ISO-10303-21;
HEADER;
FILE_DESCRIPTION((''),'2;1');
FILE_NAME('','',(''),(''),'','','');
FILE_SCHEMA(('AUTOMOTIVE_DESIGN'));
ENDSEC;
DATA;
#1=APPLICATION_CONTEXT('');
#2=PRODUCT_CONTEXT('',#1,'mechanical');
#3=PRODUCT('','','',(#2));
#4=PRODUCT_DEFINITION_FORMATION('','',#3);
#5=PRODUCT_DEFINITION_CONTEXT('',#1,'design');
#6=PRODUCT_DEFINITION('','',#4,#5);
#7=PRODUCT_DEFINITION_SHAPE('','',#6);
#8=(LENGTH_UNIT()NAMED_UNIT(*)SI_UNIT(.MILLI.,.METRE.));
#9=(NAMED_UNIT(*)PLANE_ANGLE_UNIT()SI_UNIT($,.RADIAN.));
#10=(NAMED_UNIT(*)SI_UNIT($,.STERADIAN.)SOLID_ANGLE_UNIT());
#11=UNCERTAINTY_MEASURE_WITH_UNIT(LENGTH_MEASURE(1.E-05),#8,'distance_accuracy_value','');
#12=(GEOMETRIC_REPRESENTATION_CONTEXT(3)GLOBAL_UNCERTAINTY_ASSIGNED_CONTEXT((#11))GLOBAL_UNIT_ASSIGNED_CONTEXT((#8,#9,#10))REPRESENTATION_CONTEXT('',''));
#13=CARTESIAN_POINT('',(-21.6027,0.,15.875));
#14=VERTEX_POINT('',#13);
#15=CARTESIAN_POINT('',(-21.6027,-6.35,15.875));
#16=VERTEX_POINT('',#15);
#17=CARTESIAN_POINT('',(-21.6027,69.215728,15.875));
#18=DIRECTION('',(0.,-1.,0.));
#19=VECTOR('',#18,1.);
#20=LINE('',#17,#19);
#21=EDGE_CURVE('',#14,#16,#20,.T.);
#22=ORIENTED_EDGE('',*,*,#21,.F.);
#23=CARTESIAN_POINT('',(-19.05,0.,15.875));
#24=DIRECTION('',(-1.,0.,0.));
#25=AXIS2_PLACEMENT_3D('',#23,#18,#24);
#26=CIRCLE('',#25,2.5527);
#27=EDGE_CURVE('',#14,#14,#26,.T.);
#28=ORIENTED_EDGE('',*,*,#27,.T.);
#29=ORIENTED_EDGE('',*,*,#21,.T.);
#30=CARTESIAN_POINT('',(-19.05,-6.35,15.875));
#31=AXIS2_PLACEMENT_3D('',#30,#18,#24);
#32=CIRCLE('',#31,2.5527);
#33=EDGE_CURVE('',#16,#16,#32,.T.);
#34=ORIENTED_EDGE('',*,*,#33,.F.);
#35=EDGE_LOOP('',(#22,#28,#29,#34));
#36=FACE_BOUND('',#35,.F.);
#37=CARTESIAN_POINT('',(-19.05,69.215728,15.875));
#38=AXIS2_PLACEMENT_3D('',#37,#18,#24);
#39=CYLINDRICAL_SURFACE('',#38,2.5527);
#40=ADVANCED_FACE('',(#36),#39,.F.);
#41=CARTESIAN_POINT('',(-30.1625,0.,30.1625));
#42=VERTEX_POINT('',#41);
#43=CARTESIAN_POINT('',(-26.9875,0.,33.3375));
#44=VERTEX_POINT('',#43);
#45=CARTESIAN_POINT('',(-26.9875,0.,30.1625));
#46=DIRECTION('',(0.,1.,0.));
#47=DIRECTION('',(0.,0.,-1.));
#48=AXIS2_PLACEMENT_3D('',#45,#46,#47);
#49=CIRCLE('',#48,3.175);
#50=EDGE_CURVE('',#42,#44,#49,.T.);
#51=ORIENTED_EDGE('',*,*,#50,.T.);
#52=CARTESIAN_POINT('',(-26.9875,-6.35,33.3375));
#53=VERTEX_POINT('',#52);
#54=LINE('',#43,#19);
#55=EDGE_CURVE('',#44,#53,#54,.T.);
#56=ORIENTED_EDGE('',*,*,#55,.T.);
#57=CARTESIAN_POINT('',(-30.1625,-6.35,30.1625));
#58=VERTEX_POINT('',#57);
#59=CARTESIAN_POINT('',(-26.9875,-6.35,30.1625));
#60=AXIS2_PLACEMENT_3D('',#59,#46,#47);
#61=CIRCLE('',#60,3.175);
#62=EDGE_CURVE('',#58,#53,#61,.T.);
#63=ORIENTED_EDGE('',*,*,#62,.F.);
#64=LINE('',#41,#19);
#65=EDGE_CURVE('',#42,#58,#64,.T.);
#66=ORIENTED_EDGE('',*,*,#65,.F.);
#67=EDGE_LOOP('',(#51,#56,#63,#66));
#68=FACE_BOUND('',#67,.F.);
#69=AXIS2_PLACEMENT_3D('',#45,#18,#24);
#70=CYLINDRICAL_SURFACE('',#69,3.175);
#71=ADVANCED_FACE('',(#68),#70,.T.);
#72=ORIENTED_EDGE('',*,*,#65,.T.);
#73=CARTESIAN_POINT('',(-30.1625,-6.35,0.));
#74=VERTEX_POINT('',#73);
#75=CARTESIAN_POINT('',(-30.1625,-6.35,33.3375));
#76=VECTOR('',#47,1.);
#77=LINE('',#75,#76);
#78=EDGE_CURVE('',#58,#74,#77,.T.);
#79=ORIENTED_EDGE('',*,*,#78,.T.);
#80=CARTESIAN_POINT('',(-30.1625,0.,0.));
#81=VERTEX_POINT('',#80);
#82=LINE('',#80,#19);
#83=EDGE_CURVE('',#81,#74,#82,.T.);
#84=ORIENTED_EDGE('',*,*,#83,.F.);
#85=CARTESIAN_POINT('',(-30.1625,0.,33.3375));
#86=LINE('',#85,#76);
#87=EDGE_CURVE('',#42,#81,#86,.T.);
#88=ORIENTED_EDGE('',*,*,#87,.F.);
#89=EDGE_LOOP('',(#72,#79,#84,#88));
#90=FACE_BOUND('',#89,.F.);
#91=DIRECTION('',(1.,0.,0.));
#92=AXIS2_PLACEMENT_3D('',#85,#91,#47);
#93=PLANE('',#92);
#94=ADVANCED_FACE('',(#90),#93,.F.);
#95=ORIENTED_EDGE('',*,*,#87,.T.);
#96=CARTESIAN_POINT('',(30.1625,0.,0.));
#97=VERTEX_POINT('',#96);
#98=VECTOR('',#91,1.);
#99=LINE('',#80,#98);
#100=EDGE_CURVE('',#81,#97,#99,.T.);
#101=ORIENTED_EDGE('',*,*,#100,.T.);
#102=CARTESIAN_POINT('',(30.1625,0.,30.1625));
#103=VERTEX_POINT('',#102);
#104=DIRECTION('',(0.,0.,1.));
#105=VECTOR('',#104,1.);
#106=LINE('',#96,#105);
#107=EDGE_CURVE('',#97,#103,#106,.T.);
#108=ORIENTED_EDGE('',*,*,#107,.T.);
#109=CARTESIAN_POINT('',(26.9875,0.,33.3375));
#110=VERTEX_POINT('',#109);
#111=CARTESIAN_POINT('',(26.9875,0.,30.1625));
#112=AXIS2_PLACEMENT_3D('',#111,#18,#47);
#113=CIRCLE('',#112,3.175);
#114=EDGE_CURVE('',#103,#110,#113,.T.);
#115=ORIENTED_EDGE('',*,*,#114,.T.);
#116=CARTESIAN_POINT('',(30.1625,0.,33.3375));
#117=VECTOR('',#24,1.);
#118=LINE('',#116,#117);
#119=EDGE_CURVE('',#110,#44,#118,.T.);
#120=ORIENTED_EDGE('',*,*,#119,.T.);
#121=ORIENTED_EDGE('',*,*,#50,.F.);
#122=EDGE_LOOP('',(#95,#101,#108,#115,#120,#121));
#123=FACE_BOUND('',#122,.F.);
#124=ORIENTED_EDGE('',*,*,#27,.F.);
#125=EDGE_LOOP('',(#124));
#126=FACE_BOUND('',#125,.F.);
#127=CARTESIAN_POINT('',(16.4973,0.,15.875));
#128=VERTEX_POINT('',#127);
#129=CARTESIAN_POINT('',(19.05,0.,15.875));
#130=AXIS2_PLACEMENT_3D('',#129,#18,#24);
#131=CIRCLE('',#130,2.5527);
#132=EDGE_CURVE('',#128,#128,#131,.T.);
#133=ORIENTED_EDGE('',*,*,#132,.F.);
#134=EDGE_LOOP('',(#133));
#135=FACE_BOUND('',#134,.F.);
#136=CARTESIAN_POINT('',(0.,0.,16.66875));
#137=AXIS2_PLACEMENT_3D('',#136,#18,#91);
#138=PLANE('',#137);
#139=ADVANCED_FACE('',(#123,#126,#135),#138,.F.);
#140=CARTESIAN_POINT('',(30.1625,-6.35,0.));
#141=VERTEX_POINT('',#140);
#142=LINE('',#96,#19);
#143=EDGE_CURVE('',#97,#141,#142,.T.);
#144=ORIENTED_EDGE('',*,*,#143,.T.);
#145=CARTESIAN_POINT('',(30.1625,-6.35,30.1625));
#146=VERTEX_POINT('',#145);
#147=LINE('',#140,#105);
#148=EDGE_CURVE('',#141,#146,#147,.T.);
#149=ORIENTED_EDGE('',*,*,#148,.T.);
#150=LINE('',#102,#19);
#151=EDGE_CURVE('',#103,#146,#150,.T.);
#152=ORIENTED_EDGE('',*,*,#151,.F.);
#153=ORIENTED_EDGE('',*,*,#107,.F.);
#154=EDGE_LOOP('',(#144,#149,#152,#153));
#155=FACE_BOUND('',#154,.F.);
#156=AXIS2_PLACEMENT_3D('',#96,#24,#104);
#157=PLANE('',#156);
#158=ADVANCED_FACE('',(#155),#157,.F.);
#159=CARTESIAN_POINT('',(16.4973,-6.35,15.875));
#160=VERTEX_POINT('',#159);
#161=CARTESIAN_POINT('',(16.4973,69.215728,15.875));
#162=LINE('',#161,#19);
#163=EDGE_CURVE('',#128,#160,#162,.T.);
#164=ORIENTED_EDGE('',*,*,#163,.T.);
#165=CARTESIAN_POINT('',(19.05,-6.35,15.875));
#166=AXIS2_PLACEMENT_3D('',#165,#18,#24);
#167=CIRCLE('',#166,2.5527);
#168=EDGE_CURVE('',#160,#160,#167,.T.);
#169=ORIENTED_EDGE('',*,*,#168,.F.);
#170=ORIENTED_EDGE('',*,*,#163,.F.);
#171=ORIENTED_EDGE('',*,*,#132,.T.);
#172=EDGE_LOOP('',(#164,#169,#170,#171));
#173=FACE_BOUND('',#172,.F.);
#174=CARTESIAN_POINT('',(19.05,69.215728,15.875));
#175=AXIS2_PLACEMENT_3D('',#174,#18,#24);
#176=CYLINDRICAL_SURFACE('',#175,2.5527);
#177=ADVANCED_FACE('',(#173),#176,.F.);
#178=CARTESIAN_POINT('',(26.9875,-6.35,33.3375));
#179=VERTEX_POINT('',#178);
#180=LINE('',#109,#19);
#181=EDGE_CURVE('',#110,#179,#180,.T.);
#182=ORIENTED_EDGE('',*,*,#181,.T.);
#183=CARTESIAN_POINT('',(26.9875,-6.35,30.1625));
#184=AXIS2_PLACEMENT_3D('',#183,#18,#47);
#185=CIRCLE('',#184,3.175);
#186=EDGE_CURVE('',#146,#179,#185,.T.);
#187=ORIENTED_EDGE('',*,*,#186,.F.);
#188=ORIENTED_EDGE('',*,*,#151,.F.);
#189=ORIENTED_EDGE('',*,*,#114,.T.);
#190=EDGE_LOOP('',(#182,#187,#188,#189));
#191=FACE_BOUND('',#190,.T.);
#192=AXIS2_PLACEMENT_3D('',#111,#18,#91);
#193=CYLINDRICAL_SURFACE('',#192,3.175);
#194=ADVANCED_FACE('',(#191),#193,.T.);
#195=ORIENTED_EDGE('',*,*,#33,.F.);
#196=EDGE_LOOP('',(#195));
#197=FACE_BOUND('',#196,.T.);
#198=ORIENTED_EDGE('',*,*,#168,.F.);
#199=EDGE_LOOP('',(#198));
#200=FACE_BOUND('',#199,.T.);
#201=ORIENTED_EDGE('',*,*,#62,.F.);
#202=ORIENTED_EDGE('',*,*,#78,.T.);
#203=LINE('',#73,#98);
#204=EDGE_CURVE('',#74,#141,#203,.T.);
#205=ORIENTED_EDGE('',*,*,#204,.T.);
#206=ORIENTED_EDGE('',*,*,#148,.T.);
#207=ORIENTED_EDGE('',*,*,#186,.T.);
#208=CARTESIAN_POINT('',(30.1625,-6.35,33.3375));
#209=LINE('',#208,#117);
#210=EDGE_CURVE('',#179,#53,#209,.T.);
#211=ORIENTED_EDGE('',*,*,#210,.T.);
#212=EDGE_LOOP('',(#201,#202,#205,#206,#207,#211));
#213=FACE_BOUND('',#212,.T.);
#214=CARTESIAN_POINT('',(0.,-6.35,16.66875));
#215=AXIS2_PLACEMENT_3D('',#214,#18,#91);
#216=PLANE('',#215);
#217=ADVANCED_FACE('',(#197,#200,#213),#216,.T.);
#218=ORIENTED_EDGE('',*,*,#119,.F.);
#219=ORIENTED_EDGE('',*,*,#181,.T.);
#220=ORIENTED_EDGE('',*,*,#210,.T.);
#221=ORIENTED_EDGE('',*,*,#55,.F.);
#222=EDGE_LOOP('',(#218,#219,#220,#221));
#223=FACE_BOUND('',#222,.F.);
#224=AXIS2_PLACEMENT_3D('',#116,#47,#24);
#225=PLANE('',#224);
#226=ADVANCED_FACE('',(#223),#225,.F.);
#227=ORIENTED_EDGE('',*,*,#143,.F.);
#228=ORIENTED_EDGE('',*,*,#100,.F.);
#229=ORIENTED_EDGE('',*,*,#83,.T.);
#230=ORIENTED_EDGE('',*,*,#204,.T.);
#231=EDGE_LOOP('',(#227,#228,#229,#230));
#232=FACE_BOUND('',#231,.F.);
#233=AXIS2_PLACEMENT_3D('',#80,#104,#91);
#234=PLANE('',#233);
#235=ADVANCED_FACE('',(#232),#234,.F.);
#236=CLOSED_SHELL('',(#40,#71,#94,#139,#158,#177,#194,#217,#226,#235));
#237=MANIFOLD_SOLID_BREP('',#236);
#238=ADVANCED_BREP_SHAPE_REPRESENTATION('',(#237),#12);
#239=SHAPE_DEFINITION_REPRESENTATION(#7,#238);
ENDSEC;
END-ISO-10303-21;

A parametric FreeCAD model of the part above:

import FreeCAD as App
import Part
import Sketcher
Q = App.Units.Quantity


def edges_at(feature, points):
    """Names of the edges that pass closest to the given points."""
    edges = feature.Shape.Edges
    near = lambda p: min(range(len(edges)), key=lambda i: edges[i].distToShape(Part.Vertex(*p))[0])
    return sorted({f"Edge{near(p) + 1}" for p in points})


def add_polygon(sketch, points):
    """Adds a closed chain of lines whose ends are joined by coincident constraints."""
    first, n = sketch.GeometryCount, len(points)
    for a, b in zip(points, points[1:] + points[:1]):
        sketch.addGeometry(Part.LineSegment(App.Vector(*a, 0), App.Vector(*b, 0)), False)
    for i in range(n):
        sketch.addConstraint(Sketcher.Constraint("Coincident", first + i, 2, first + (i + 1) % n, 1))

doc = App.newDocument("Part")
body = doc.addObject("PartDesign::Body", "Body")

# Sketch on XZ plane
sketch1 = body.newObject("Sketcher::SketchObject", "Sketch")
sketch1.AttachmentSupport = (doc.getObject("XZ_Plane"), [""])
sketch1.MapMode = "FlatFace"
add_polygon(sketch1, [(-30.1625, 0), (30.1625, 0), (30.1625, 33.3375), (-30.1625, 33.3375)])  # lines 0-3
sketch1.addConstraint([
    Sketcher.Constraint("Horizontal", 0),
    Sketcher.Constraint("Vertical", 1),
    Sketcher.Constraint("Horizontal", 2),
    Sketcher.Constraint("Vertical", 3),
    Sketcher.Constraint("Symmetric", 0, 2, 3, 2, -1, 1),
    Sketcher.Constraint("DistanceX", 0, 1, 0, 2, Q("2.375 in")),
    Sketcher.Constraint("DistanceY", 1, 1, 1, 2, Q("1.3125 in")),
])
pad1 = body.newObject("PartDesign::Pad", "Pad")
pad1.Profile = sketch1
pad1.Length = Q("0.25 in")

# Sketch on XZ plane
sketch2 = body.newObject("Sketcher::SketchObject", "Sketch001")
sketch2.AttachmentSupport = (doc.getObject("XZ_Plane"), [""])
sketch2.MapMode = "FlatFace"
sketch2.addGeometry([
    Part.Circle(App.Vector(-19.05, 15.875, 0), App.Vector(0, 0, 1), 2.5527),
    Part.Circle(App.Vector(19.05, 15.875, 0), App.Vector(0, 0, 1), 2.5527),
], False)
sketch2.addConstraint([
    Sketcher.Constraint("Equal", 0, 1),
    Sketcher.Constraint("Symmetric", 0, 3, 1, 3, -2),
    Sketcher.Constraint("Diameter", 0, Q("0.201 in")),
    Sketcher.Constraint("DistanceX", 0, 3, 1, 3, Q("1.5 in")),
    Sketcher.Constraint("DistanceY", -1, 1, 0, 3, Q("0.625 in")),
])
doc.recompute()
hole = body.newObject("PartDesign::Hole", "Hole")
hole.Profile = sketch2
hole.ThreadType = "None"
hole.Diameter = Q("0.201 in")
hole.DepthType = "ThroughAll"
hole.Reversed = True
doc.recompute()

fillet = body.newObject("PartDesign::Fillet", "Fillet")
fillet.Base = (hole, edges_at(hole, [(-30.163, -3.175, 33.337), (30.163, -3.175, 33.337)]))
fillet.Radius = Q("0.125 in")

doc.recompute()
